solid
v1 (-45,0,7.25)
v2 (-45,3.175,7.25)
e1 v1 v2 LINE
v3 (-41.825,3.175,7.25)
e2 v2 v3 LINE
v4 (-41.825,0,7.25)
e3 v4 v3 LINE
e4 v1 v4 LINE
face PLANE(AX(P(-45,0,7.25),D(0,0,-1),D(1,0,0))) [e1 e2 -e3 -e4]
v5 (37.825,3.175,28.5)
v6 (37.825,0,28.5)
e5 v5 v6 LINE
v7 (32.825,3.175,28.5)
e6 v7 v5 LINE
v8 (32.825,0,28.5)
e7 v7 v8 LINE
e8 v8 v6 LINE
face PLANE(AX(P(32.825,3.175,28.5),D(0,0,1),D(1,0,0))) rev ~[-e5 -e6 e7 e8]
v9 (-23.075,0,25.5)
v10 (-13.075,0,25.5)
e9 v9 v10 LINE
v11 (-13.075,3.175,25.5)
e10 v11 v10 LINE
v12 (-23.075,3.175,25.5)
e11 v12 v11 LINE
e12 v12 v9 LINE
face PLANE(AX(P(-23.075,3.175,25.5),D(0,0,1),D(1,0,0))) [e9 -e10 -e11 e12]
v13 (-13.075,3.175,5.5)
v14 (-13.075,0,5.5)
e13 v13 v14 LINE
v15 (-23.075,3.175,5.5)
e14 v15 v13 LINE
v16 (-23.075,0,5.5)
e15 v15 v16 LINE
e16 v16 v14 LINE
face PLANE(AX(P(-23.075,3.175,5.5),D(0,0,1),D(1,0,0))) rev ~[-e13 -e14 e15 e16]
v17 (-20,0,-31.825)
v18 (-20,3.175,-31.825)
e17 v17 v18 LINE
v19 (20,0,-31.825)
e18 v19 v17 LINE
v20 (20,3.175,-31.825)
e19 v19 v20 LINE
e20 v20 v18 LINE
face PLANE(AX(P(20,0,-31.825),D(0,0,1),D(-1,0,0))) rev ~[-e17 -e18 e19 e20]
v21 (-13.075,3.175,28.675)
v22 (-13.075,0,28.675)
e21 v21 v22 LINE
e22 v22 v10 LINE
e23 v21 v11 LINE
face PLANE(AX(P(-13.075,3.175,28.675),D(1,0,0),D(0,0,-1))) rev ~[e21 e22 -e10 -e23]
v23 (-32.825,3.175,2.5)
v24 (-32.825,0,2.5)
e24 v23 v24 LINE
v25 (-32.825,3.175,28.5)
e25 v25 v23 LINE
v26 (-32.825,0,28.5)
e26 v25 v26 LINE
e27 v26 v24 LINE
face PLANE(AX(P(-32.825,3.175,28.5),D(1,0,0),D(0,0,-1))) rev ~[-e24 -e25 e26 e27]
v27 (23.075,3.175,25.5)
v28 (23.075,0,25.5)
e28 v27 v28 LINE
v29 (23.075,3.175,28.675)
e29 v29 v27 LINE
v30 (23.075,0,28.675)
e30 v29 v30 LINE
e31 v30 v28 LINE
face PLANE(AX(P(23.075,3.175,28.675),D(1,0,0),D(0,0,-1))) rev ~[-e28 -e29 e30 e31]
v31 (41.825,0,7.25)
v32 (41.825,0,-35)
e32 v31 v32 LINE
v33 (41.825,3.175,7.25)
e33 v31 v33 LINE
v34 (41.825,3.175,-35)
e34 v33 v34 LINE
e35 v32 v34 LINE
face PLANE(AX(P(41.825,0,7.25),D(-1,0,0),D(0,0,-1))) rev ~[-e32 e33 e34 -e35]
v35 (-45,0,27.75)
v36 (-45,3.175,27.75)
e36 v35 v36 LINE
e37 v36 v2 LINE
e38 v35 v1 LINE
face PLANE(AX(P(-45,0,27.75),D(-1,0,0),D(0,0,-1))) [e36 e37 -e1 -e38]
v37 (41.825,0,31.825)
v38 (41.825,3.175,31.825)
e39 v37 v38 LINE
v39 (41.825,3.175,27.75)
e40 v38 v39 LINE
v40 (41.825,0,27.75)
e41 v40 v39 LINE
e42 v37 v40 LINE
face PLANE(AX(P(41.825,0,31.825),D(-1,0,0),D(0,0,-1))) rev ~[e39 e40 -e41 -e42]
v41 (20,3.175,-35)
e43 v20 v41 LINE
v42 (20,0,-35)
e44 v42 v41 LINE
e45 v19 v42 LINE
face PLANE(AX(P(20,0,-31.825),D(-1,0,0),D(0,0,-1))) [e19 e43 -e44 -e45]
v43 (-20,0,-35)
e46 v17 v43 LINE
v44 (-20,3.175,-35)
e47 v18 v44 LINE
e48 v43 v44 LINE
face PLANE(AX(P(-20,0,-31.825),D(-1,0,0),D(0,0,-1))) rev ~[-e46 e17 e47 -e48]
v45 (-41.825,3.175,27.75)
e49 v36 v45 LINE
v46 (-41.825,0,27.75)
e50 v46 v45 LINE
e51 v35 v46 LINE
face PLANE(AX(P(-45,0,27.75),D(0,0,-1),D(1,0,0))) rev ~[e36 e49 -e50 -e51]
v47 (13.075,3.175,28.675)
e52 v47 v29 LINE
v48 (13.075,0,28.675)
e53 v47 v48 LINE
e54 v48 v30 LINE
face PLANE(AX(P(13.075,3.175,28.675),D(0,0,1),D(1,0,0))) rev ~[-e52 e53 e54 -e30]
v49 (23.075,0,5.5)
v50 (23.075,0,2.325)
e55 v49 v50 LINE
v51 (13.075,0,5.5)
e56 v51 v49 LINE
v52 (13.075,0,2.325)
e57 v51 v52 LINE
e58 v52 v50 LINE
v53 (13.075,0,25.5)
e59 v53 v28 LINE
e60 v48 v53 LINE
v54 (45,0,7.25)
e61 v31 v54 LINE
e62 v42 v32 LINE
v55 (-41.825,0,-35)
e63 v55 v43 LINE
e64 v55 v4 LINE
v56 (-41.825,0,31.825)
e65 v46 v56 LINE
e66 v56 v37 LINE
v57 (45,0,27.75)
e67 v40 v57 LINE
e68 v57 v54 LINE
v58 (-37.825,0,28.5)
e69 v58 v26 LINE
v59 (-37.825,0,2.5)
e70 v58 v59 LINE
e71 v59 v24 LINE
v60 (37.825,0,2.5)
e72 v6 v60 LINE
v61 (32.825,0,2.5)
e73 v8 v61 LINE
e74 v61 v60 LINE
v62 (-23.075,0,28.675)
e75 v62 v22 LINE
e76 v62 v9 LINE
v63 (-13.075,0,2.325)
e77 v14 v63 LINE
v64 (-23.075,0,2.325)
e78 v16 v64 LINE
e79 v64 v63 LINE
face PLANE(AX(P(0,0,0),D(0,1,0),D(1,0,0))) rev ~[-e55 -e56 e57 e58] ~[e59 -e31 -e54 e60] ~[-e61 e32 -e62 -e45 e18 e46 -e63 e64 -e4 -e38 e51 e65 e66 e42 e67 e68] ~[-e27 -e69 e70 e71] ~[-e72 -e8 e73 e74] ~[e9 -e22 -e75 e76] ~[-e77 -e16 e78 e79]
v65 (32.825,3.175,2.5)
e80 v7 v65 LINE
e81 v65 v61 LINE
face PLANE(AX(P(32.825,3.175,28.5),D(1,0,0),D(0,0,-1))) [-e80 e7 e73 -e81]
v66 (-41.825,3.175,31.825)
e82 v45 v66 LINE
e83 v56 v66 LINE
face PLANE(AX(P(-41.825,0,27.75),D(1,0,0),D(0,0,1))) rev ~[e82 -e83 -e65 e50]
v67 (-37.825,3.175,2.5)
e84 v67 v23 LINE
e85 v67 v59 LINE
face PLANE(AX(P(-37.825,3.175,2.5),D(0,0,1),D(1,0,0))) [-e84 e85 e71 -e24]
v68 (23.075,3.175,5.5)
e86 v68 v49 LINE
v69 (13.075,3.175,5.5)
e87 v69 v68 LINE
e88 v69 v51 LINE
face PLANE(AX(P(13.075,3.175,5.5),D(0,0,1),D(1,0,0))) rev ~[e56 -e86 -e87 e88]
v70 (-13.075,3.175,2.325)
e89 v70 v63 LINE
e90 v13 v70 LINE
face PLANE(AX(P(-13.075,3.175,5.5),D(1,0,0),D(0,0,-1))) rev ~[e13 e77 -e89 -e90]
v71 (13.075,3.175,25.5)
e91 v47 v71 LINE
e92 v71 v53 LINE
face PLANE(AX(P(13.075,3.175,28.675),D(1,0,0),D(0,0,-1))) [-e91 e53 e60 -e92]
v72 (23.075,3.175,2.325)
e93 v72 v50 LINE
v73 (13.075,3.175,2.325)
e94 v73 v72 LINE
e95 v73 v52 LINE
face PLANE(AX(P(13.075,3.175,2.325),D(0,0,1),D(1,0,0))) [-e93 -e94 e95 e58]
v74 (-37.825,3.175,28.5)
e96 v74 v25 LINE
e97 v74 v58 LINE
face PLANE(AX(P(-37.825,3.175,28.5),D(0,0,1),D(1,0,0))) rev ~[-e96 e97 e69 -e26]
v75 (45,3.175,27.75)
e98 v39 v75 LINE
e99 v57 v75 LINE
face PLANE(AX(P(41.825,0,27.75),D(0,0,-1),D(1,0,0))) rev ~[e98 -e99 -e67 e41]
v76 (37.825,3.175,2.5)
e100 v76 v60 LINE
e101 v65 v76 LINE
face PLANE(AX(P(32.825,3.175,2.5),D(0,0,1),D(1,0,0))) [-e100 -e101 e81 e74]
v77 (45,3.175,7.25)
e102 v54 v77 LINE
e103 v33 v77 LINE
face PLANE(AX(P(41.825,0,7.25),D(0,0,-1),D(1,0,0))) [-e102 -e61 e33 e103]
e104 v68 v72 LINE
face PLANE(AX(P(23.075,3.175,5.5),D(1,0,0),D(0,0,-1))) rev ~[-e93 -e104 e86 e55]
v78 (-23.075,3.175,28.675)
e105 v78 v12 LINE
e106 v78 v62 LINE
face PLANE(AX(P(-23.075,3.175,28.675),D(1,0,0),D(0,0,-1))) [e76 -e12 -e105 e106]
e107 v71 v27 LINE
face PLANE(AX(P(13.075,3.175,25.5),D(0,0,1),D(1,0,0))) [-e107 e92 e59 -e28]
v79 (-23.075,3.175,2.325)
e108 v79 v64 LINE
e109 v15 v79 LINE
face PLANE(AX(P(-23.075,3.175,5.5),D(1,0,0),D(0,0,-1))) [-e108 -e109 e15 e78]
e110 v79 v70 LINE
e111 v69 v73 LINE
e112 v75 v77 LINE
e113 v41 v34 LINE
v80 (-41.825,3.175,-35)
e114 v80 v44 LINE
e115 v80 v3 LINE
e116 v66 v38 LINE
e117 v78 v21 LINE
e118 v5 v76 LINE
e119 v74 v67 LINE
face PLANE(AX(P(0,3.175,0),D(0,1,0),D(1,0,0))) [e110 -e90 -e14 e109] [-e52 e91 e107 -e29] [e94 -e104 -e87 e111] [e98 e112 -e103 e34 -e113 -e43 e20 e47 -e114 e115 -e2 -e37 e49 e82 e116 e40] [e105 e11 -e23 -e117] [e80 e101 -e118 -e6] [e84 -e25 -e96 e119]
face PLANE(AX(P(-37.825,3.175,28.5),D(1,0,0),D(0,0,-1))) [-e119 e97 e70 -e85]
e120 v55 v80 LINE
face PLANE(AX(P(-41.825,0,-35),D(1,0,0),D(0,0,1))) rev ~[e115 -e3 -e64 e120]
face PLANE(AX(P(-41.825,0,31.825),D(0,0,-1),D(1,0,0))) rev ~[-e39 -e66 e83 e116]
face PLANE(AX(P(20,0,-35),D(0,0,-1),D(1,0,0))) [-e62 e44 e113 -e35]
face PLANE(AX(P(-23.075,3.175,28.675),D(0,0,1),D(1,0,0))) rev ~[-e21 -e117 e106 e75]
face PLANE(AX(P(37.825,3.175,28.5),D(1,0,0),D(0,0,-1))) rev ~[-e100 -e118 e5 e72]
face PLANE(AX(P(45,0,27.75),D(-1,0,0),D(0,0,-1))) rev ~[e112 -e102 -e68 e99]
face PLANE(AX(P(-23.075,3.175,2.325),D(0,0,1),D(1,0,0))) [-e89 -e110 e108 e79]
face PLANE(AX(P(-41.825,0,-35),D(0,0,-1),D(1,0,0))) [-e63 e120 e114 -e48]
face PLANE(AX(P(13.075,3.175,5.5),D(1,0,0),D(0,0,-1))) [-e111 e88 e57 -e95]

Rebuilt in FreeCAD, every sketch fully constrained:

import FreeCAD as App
import Part
import Sketcher

V = App.Vector


def add_polygon(sketch, points):
    """Adds a closed chain of lines whose ends are joined by coincident constraints."""
    first, n = sketch.GeometryCount, len(points)
    for a, b in zip(points, points[1:] + points[:1]):
        sketch.addGeometry(Part.LineSegment(App.Vector(*a, 0), App.Vector(*b, 0)), False)
    for i in range(n):
        sketch.addConstraint(Sketcher.Constraint("Coincident", first + i, 2, first + (i + 1) % n, 1))

doc = App.newDocument("Part")
body = doc.addObject("PartDesign::Body", "Body")

sketch1 = body.newObject("Sketcher::SketchObject", "Sketch")
sketch1.AttachmentSupport = (doc.getObject("XZ_Plane"), [""])
sketch1.MapMode = "FlatFace"
add_polygon(sketch1, [(-41.8, 31.8), (41.8, 31.8), (41.8, 27.8), (45, 27.8), (45, 7.2), (41.8, 7.2), (41.8, -35), (20, -35), (20, -31.8), (-20, -31.8), (-20, -35), (-41.8, -35), (-41.8, 7.2), (-45, 7.2), (-45, 27.8), (-41.8, 27.8)])
sketch1.addConstraint([
    Sketcher.Constraint("Horizontal", 0),
    Sketcher.Constraint("Vertical", 1),
    Sketcher.Constraint("Horizontal", 2),
    Sketcher.Constraint("Vertical", 3),
    Sketcher.Constraint("Horizontal", 4),
    Sketcher.Constraint("Vertical", 5),
    Sketcher.Constraint("Horizontal", 6),
    Sketcher.Constraint("Vertical", 7),
    Sketcher.Constraint("Horizontal", 8),
    Sketcher.Constraint("Vertical", 9),
    Sketcher.Constraint("Horizontal", 10),
    Sketcher.Constraint("Vertical", 11),
    Sketcher.Constraint("Horizontal", 12),
    Sketcher.Constraint("Vertical", 13),
    Sketcher.Constraint("Horizontal", 14),
    Sketcher.Constraint("Vertical", 15),
    Sketcher.Constraint("Symmetric", 6, 2, 9, 2, -2),
    Sketcher.Constraint("Symmetric", 4, 2, 11, 2, -2),
    Sketcher.Constraint("Symmetric", 2, 2, 13, 2, -2),
    Sketcher.Constraint("Vertical", 1, 2, 4, 2),
    Sketcher.Constraint("Vertical", 11, 2, 14, 2),
    Sketcher.Constraint("Equal", 14, 7),
    Sketcher.Constraint("DistanceX", 8, 2, 8, 1, 40.0),
    Sketcher.Constraint("DistanceY", 3, 2, 3, 1, 20.5),
    Sketcher.Constraint("DistanceX", -1, 1, 2, 2, 45.0),
    Sketcher.Constraint("DistanceY", 5, 2, -1, 1, 35.0),
    Sketcher.Constraint("DistanceX", 0, 1, 0, 2, 83.65),
    Sketcher.Constraint("DistanceY", 5, 2, 5, 1, 42.25),
    Sketcher.Constraint("DistanceY", 1, 2, 1, 1, 4.075),
])
pad1 = body.newObject("PartDesign::Pad", "Pad")
pad1.Profile = sketch1
pad1.Length = 3.175
pad1.Reversed = True

sketch2 = body.newObject("Sketcher::SketchObject", "Sketch001")
sketch2.AttachmentSupport = (doc.getObject("XZ_Plane"), [""])
sketch2.MapMode = "FlatFace"
sketch2.AttachmentOffset = App.Placement(V(0, 0, -3.175), App.Rotation())
add_polygon(sketch2, [(-37.8, 2.5), (-37.8, 28.5), (-32.8, 28.5), (-32.8, 2.5)])
add_polygon(sketch2, [(32.8, 2.5), (32.8, 28.5), (37.8, 28.5), (37.8, 2.5)])
add_polygon(sketch2, [(-23.1, 2.3), (-23.1, 5.5), (-13.1, 5.5), (-13.1, 2.3)])
add_polygon(sketch2, [(13.1, 2.3), (13.1, 5.5), (23.1, 5.5), (23.1, 2.3)])
add_polygon(sketch2, [(13.1, 25.5), (13.1, 28.7), (23.1, 28.7), (23.1, 25.5)])
add_polygon(sketch2, [(-23.1, 25.5), (-23.1, 28.7), (-13.1, 28.7), (-13.1, 25.5)])
sketch2.addConstraint([
    Sketcher.Constraint("Vertical", 0),
    Sketcher.Constraint("Horizontal", 1),
    Sketcher.Constraint("Vertical", 2),
    Sketcher.Constraint("Horizontal", 3),
    Sketcher.Constraint("Vertical", 4),
    Sketcher.Constraint("Horizontal", 5),
    Sketcher.Constraint("Vertical", 6),
    Sketcher.Constraint("Horizontal", 7),
    Sketcher.Constraint("Vertical", 8),
    Sketcher.Constraint("Horizontal", 9),
    Sketcher.Constraint("Vertical", 10),
    Sketcher.Constraint("Horizontal", 11),
    Sketcher.Constraint("Vertical", 12),
    Sketcher.Constraint("Horizontal", 13),
    Sketcher.Constraint("Vertical", 14),
    Sketcher.Constraint("Horizontal", 15),
    Sketcher.Constraint("Vertical", 16),
    Sketcher.Constraint("Horizontal", 17),
    Sketcher.Constraint("Vertical", 18),
    Sketcher.Constraint("Horizontal", 19),
    Sketcher.Constraint("Vertical", 20),
    Sketcher.Constraint("Horizontal", 21),
    Sketcher.Constraint("Vertical", 22),
    Sketcher.Constraint("Horizontal", 23),
    Sketcher.Constraint("Symmetric", 1, 2, 4, 2, -2),
    Sketcher.Constraint("Symmetric", 3, 2, 6, 2, -2),
    Sketcher.Constraint("Symmetric", 9, 2, 12, 2, -2),
    Sketcher.Constraint("Symmetric", 11, 2, 14, 2, -2),
    Sketcher.Constraint("Symmetric", 17, 2, 20, 2, -2),
    Sketcher.Constraint("Symmetric", 19, 2, 22, 2, -2),
    Sketcher.Constraint("Vertical", 15, 2, 16, 2),
    Sketcher.Constraint("Vertical", 14, 2, 17, 2),
    Sketcher.Constraint("Equal", 14, 16),
    Sketcher.Constraint("DistanceX", 1, 1, 1, 2, 5.0),
    Sketcher.Constraint("DistanceX", 9, 1, 9, 2, 10.0),
    Sketcher.Constraint("DistanceY", 0, 1, 0, 2, 26.0),
    Sketcher.Constraint("DistanceY", 2, 2, 8, 2, 3.0),
    Sketcher.Constraint("DistanceY", 18, 2, 4, 2, 3.0),
    Sketcher.Constraint("DistanceY", -1, 1, 0, 2, 28.5),
    Sketcher.Constraint("DistanceX", 8, 2, 7, 2, 55.9),
    Sketcher.Constraint("DistanceY", 8, 1, 8, 2, 3.175),
    Sketcher.Constraint("DistanceX", 1, 2, 4, 2, 65.65),
])
pocket1 = body.newObject("PartDesign::Pocket", "Pocket")
pocket1.Profile = sketch2
pocket1.Length = 23.175
pocket1.Reversed = True

doc.recompute()
